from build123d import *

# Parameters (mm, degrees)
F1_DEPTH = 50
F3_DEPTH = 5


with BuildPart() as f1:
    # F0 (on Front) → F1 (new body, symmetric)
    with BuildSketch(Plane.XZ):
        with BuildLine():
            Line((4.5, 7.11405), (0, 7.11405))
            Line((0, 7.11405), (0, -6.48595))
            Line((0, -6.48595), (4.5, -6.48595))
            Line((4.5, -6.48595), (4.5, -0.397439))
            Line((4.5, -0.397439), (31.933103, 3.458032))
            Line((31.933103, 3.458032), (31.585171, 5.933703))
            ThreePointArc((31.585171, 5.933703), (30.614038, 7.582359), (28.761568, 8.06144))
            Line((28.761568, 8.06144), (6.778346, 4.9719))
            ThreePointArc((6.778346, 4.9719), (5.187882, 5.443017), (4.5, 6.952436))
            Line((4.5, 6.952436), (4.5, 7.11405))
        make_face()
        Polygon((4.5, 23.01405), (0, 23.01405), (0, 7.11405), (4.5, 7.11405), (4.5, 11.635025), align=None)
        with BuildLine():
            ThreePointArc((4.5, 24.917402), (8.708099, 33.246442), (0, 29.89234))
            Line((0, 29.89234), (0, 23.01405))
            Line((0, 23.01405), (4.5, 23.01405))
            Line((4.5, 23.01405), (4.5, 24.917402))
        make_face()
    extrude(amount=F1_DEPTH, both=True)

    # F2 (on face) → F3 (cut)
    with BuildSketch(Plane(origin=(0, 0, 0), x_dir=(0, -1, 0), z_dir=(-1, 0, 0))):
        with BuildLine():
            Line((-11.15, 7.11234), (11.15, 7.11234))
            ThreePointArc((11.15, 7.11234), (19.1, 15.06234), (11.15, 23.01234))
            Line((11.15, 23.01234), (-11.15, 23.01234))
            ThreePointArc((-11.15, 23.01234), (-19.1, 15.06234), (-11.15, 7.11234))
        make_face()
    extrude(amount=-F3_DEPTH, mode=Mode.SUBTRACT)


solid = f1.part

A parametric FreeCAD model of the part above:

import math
import FreeCAD as App
import Part
import Sketcher

V = App.Vector
Q = App.Units.Quantity

doc = App.newDocument("Part")
body = doc.addObject("PartDesign::Body", "Body")

# Sketch on XZ plane
sketch1 = body.newObject("Sketcher::SketchObject", "Sketch")
sketch1.AttachmentSupport = (doc.getObject("XZ_Plane"), [""])
sketch1.MapMode = "FlatFace"
sketch1.addGeometry(Part.LineSegment(V(0, -6.5, 0), V(4.5, -6.5, 0)), False)
sketch1.addGeometry(Part.LineSegment(V(4.5, -6.5, 0), V(4.5, -0.4, 0)), False)
sketch1.addGeometry(Part.LineSegment(V(4.5, -0.4, 0), V(31.9, 3.5, 0)), False)
sketch1.addGeometry(Part.LineSegment(V(31.9, 3.5, 0), V(31.6, 5.9, 0)), False)
sketch1.addGeometry(Part.ArcOfCircle(Part.Circle(V(29.1, 5.6, 0), V(0, 0, 1), 2.5), math.radians(8), math.radians(98)), False)
sketch1.addGeometry(Part.LineSegment(V(28.8, 8.1, 0), V(6.8, 5, 0)), False)
sketch1.addGeometry(Part.ArcOfCircle(Part.Circle(V(6.5, 7, 0), V(0, 0, 1), 2), math.radians(-180), math.radians(-82)), False)
sketch1.addGeometry(Part.LineSegment(V(4.5, 7, 0), V(4.5, 24.9, 0)), False)
sketch1.addGeometry(Part.ArcOfCircle(Part.Circle(V(5, 29.9, 0), V(0, 0, 1), 5), math.radians(-96), math.radians(180)), False)
sketch1.addGeometry(Part.LineSegment(V(0, 29.9, 0), V(0, -6.5, 0)), False)
sketch1.addConstraint(Sketcher.Constraint("Coincident", 0, 2, 1, 1))
sketch1.addConstraint(Sketcher.Constraint("Coincident", 1, 2, 2, 1))
sketch1.addConstraint(Sketcher.Constraint("Coincident", 2, 2, 3, 1))
sketch1.addConstraint(Sketcher.Constraint("Tangent", 3, 2, 4, 1))
sketch1.addConstraint(Sketcher.Constraint("Tangent", 4, 2, 5, 1))
sketch1.addConstraint(Sketcher.Constraint("Tangent", 5, 2, 6, 2))
sketch1.addConstraint(Sketcher.Constraint("Tangent", 6, 1, 7, 1))
sketch1.addConstraint(Sketcher.Constraint("Coincident", 7, 2, 8, 1))
sketch1.addConstraint(Sketcher.Constraint("Tangent", 8, 2, 9, 1))
sketch1.addConstraint(Sketcher.Constraint("Coincident", 9, 2, 0, 1))
sketch1.addConstraint(Sketcher.Constraint("Horizontal", 0))
sketch1.addConstraint(Sketcher.Constraint("Vertical", 1))
sketch1.addConstraint(Sketcher.Constraint("Vertical", 7))
sketch1.addConstraint(Sketcher.Constraint("Vertical", 9))
sketch1.addConstraint(Sketcher.Constraint("PointOnObject", 8, 2, -2))
sketch1.addConstraint(Sketcher.Constraint("Perpendicular", 2, 3))
sketch1.addConstraint(Sketcher.Constraint("Perpendicular", 3, 5))
sketch1.addConstraint(Sketcher.Constraint("Vertical", 1, 2, 6, 1))
sketch1.addConstraint(Sketcher.Constraint("Radius", 6, 2.0))
sketch1.addConstraint(Sketcher.Constraint("Radius", 8, 5.0))
sketch1.addConstraint(Sketcher.Constraint("Radius", 4, 2.5))
sketch1.addConstraint(Sketcher.Constraint("Angle", 2, Q("8 deg")))
sketch1.addConstraint(Sketcher.Constraint("DistanceX", 0, 1, 0, 2, 4.5))
sketch1.addConstraint(Sketcher.Constraint("Distance", 3, 2.500001))
sketch1.addConstraint(Sketcher.Constraint("DistanceY", 1, 1, 1, 2, 6.088511))
sketch1.addConstraint(Sketcher.Constraint("DistanceY", 9, 2, 9, 1, 36.37829))
sketch1.addConstraint(Sketcher.Constraint("DistanceX", -1, 1, 4, 3, 29.109501))
sketch1.addConstraint(Sketcher.Constraint("DistanceY", -1, 1, 5, 2, 4.9719))
pad1 = body.newObject("PartDesign::Pad", "Pad")
pad1.Profile = sketch1
pad1.Length = 100
pad1.Midplane = True

# Sketch on YZ plane
sketch2 = body.newObject("Sketcher::SketchObject", "Sketch001")
sketch2.AttachmentSupport = (doc.getObject("YZ_Plane"), [""])
sketch2.MapMode = "FlatFace"
sketch2.addGeometry(Part.LineSegment(V(11, 7, 0), V(-11, 7, 0)), False)
sketch2.addGeometry(Part.ArcOfCircle(Part.Circle(V(-11, 15, 0), V(0, 0, 1), 8), math.radians(90), math.radians(270)), False)
sketch2.addGeometry(Part.LineSegment(V(-11, 23, 0), V(11, 23, 0)), False)
sketch2.addGeometry(Part.ArcOfCircle(Part.Circle(V(11, 15, 0), V(0, 0, 1), 8), math.radians(-90), math.radians(90)), False)
sketch2.addConstraint(Sketcher.Constraint("Tangent", 0, 2, 1, 2))
sketch2.addConstraint(Sketcher.Constraint("Tangent", 1, 1, 2, 1))
sketch2.addConstraint(Sketcher.Constraint("Tangent", 2, 2, 3, 2))
sketch2.addConstraint(Sketcher.Constraint("Tangent", 3, 1, 0, 1))
sketch2.addConstraint(Sketcher.Constraint("Horizontal", 0))
sketch2.addConstraint(Sketcher.Constraint("Horizontal", 2))
sketch2.addConstraint(Sketcher.Constraint("Radius", 1, 7.95))
sketch2.addConstraint(Sketcher.Constraint("DistanceX", 0, 2, 0, 1, 22.3))
sketch2.addConstraint(Sketcher.Constraint("DistanceX", 1, 3, -1, 1, 11.15))
sketch2.addConstraint(Sketcher.Constraint("DistanceY", -1, 1, 1, 3, 15.06234))
pocket1 = body.newObject("PartDesign::Pocket", "Pocket")
pocket1.Profile = sketch2
pocket1.Length = 5
pocket1.Reversed = True

doc.recompute()
